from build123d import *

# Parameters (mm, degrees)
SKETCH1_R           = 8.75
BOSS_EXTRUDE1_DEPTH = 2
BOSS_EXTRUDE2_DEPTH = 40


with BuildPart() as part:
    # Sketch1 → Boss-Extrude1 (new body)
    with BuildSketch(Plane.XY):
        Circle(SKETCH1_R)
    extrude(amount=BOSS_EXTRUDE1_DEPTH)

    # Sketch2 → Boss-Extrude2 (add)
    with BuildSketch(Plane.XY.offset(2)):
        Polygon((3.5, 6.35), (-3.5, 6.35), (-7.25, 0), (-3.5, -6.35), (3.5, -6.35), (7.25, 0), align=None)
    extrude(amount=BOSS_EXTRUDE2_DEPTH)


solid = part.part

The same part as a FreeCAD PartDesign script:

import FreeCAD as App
import Part
import Sketcher


def add_polygon(sketch, points):
    """Adds a closed chain of lines whose ends are joined by coincident constraints."""
    first, n = sketch.GeometryCount, len(points)
    for a, b in zip(points, points[1:] + points[:1]):
        sketch.addGeometry(Part.LineSegment(App.Vector(*a, 0), App.Vector(*b, 0)), False)
    for i in range(n):
        sketch.addConstraint(Sketcher.Constraint("Coincident", first + i, 2, first + (i + 1) % n, 1))

doc = App.newDocument("Part")
body = doc.addObject("PartDesign::Body", "Body")

# Sketch on XY plane
sketch1 = body.newObject("Sketcher::SketchObject", "Sketch")
sketch1.AttachmentSupport = (doc.getObject("XY_Plane"), [""])
sketch1.MapMode = "FlatFace"
sketch1.addGeometry(Part.Circle(App.Vector(0, 0, 0), App.Vector(0, 0, 1), 9), False)
sketch1.addConstraint([
    Sketcher.Constraint("Coincident", 0, 3, -1, 1),
    Sketcher.Constraint("Diameter", 0, 17.5),
])
pad1 = body.newObject("PartDesign::Pad", "Pad")
pad1.Profile = sketch1
pad1.Length = 2

# Sketch on XY plane
sketch2 = body.newObject("Sketcher::SketchObject", "Sketch001")
sketch2.AttachmentSupport = (doc.getObject("XY_Plane"), [""])
sketch2.MapMode = "FlatFace"
sketch2.AttachmentOffset = App.Placement(App.Vector(0, 0, 2), App.Rotation())
add_polygon(sketch2, [(4, 6), (-4, 6), (-7, 0), (-4, -6), (4, -6), (7, 0)])  # lines 0-5
sketch2.addConstraint([
    Sketcher.Constraint("Horizontal", 0),
    Sketcher.Constraint("Horizontal", 3),
    Sketcher.Constraint("Symmetric", 0, 2, 3, 2, -1, 1),
    Sketcher.Constraint("Symmetric", 1, 2, 4, 2, -1, 1),
    Sketcher.Constraint("PointOnObject", 1, 2, -1),
    Sketcher.Constraint("Parallel", 2, 5),
    Sketcher.Constraint("Vertical", 0, 2, 2, 2),
    Sketcher.Constraint("DistanceX", 0, 2, 0, 1, 7.0),
    Sketcher.Constraint("DistanceY", 2, 2, 0, 2, 12.7),
    Sketcher.Constraint("DistanceX", 1, 2, 4, 2, 14.5),
])
pad2 = body.newObject("PartDesign::Pad", "Pad001")
pad2.Profile = sketch2
pad2.Length = 40

doc.recompute()
